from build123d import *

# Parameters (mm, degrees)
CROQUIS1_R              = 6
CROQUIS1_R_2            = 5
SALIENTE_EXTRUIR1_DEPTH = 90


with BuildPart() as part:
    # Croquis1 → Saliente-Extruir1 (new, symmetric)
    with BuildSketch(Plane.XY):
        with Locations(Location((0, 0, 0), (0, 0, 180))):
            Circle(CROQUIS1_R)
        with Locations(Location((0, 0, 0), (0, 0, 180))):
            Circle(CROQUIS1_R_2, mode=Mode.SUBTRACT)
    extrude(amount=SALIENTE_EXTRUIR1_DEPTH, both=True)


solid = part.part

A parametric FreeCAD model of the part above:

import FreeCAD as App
import Part
import Sketcher
Q = App.Units.Quantity

doc = App.newDocument("Part")
body = doc.addObject("PartDesign::Body", "Body")

# Sketch on XY plane
sketch1 = doc.addObject("Sketcher::SketchObject", "Sketch")
body.addObject(sketch1)
sketch1.AttachmentSupport = (doc.XY_Plane, [""])
sketch1.MapMode = "FlatFace"
sketch1.addGeometry(Part.Circle(App.Vector(0, 0, 0), App.Vector(0, 0, 1), 6), False)
sketch1.addGeometry(Part.Circle(App.Vector(0, 0, 0), App.Vector(0, 0, 1), 5), False)
sketch1.addConstraint(Sketcher.Constraint("Coincident", 0, 3, -1, 1))
sketch1.addConstraint(Sketcher.Constraint("Coincident", 1, 3, -1, 1))
sketch1.addConstraint(Sketcher.Constraint("Diameter", 0, Q("12 mm")))
sketch1.addConstraint(Sketcher.Constraint("Diameter", 1, Q("10 mm")))
pad1 = doc.addObject("PartDesign::Pad", "Pad")
body.addObject(pad1)
pad1.Profile = sketch1
pad1.Length = 180
pad1.Midplane = True

doc.recompute()
